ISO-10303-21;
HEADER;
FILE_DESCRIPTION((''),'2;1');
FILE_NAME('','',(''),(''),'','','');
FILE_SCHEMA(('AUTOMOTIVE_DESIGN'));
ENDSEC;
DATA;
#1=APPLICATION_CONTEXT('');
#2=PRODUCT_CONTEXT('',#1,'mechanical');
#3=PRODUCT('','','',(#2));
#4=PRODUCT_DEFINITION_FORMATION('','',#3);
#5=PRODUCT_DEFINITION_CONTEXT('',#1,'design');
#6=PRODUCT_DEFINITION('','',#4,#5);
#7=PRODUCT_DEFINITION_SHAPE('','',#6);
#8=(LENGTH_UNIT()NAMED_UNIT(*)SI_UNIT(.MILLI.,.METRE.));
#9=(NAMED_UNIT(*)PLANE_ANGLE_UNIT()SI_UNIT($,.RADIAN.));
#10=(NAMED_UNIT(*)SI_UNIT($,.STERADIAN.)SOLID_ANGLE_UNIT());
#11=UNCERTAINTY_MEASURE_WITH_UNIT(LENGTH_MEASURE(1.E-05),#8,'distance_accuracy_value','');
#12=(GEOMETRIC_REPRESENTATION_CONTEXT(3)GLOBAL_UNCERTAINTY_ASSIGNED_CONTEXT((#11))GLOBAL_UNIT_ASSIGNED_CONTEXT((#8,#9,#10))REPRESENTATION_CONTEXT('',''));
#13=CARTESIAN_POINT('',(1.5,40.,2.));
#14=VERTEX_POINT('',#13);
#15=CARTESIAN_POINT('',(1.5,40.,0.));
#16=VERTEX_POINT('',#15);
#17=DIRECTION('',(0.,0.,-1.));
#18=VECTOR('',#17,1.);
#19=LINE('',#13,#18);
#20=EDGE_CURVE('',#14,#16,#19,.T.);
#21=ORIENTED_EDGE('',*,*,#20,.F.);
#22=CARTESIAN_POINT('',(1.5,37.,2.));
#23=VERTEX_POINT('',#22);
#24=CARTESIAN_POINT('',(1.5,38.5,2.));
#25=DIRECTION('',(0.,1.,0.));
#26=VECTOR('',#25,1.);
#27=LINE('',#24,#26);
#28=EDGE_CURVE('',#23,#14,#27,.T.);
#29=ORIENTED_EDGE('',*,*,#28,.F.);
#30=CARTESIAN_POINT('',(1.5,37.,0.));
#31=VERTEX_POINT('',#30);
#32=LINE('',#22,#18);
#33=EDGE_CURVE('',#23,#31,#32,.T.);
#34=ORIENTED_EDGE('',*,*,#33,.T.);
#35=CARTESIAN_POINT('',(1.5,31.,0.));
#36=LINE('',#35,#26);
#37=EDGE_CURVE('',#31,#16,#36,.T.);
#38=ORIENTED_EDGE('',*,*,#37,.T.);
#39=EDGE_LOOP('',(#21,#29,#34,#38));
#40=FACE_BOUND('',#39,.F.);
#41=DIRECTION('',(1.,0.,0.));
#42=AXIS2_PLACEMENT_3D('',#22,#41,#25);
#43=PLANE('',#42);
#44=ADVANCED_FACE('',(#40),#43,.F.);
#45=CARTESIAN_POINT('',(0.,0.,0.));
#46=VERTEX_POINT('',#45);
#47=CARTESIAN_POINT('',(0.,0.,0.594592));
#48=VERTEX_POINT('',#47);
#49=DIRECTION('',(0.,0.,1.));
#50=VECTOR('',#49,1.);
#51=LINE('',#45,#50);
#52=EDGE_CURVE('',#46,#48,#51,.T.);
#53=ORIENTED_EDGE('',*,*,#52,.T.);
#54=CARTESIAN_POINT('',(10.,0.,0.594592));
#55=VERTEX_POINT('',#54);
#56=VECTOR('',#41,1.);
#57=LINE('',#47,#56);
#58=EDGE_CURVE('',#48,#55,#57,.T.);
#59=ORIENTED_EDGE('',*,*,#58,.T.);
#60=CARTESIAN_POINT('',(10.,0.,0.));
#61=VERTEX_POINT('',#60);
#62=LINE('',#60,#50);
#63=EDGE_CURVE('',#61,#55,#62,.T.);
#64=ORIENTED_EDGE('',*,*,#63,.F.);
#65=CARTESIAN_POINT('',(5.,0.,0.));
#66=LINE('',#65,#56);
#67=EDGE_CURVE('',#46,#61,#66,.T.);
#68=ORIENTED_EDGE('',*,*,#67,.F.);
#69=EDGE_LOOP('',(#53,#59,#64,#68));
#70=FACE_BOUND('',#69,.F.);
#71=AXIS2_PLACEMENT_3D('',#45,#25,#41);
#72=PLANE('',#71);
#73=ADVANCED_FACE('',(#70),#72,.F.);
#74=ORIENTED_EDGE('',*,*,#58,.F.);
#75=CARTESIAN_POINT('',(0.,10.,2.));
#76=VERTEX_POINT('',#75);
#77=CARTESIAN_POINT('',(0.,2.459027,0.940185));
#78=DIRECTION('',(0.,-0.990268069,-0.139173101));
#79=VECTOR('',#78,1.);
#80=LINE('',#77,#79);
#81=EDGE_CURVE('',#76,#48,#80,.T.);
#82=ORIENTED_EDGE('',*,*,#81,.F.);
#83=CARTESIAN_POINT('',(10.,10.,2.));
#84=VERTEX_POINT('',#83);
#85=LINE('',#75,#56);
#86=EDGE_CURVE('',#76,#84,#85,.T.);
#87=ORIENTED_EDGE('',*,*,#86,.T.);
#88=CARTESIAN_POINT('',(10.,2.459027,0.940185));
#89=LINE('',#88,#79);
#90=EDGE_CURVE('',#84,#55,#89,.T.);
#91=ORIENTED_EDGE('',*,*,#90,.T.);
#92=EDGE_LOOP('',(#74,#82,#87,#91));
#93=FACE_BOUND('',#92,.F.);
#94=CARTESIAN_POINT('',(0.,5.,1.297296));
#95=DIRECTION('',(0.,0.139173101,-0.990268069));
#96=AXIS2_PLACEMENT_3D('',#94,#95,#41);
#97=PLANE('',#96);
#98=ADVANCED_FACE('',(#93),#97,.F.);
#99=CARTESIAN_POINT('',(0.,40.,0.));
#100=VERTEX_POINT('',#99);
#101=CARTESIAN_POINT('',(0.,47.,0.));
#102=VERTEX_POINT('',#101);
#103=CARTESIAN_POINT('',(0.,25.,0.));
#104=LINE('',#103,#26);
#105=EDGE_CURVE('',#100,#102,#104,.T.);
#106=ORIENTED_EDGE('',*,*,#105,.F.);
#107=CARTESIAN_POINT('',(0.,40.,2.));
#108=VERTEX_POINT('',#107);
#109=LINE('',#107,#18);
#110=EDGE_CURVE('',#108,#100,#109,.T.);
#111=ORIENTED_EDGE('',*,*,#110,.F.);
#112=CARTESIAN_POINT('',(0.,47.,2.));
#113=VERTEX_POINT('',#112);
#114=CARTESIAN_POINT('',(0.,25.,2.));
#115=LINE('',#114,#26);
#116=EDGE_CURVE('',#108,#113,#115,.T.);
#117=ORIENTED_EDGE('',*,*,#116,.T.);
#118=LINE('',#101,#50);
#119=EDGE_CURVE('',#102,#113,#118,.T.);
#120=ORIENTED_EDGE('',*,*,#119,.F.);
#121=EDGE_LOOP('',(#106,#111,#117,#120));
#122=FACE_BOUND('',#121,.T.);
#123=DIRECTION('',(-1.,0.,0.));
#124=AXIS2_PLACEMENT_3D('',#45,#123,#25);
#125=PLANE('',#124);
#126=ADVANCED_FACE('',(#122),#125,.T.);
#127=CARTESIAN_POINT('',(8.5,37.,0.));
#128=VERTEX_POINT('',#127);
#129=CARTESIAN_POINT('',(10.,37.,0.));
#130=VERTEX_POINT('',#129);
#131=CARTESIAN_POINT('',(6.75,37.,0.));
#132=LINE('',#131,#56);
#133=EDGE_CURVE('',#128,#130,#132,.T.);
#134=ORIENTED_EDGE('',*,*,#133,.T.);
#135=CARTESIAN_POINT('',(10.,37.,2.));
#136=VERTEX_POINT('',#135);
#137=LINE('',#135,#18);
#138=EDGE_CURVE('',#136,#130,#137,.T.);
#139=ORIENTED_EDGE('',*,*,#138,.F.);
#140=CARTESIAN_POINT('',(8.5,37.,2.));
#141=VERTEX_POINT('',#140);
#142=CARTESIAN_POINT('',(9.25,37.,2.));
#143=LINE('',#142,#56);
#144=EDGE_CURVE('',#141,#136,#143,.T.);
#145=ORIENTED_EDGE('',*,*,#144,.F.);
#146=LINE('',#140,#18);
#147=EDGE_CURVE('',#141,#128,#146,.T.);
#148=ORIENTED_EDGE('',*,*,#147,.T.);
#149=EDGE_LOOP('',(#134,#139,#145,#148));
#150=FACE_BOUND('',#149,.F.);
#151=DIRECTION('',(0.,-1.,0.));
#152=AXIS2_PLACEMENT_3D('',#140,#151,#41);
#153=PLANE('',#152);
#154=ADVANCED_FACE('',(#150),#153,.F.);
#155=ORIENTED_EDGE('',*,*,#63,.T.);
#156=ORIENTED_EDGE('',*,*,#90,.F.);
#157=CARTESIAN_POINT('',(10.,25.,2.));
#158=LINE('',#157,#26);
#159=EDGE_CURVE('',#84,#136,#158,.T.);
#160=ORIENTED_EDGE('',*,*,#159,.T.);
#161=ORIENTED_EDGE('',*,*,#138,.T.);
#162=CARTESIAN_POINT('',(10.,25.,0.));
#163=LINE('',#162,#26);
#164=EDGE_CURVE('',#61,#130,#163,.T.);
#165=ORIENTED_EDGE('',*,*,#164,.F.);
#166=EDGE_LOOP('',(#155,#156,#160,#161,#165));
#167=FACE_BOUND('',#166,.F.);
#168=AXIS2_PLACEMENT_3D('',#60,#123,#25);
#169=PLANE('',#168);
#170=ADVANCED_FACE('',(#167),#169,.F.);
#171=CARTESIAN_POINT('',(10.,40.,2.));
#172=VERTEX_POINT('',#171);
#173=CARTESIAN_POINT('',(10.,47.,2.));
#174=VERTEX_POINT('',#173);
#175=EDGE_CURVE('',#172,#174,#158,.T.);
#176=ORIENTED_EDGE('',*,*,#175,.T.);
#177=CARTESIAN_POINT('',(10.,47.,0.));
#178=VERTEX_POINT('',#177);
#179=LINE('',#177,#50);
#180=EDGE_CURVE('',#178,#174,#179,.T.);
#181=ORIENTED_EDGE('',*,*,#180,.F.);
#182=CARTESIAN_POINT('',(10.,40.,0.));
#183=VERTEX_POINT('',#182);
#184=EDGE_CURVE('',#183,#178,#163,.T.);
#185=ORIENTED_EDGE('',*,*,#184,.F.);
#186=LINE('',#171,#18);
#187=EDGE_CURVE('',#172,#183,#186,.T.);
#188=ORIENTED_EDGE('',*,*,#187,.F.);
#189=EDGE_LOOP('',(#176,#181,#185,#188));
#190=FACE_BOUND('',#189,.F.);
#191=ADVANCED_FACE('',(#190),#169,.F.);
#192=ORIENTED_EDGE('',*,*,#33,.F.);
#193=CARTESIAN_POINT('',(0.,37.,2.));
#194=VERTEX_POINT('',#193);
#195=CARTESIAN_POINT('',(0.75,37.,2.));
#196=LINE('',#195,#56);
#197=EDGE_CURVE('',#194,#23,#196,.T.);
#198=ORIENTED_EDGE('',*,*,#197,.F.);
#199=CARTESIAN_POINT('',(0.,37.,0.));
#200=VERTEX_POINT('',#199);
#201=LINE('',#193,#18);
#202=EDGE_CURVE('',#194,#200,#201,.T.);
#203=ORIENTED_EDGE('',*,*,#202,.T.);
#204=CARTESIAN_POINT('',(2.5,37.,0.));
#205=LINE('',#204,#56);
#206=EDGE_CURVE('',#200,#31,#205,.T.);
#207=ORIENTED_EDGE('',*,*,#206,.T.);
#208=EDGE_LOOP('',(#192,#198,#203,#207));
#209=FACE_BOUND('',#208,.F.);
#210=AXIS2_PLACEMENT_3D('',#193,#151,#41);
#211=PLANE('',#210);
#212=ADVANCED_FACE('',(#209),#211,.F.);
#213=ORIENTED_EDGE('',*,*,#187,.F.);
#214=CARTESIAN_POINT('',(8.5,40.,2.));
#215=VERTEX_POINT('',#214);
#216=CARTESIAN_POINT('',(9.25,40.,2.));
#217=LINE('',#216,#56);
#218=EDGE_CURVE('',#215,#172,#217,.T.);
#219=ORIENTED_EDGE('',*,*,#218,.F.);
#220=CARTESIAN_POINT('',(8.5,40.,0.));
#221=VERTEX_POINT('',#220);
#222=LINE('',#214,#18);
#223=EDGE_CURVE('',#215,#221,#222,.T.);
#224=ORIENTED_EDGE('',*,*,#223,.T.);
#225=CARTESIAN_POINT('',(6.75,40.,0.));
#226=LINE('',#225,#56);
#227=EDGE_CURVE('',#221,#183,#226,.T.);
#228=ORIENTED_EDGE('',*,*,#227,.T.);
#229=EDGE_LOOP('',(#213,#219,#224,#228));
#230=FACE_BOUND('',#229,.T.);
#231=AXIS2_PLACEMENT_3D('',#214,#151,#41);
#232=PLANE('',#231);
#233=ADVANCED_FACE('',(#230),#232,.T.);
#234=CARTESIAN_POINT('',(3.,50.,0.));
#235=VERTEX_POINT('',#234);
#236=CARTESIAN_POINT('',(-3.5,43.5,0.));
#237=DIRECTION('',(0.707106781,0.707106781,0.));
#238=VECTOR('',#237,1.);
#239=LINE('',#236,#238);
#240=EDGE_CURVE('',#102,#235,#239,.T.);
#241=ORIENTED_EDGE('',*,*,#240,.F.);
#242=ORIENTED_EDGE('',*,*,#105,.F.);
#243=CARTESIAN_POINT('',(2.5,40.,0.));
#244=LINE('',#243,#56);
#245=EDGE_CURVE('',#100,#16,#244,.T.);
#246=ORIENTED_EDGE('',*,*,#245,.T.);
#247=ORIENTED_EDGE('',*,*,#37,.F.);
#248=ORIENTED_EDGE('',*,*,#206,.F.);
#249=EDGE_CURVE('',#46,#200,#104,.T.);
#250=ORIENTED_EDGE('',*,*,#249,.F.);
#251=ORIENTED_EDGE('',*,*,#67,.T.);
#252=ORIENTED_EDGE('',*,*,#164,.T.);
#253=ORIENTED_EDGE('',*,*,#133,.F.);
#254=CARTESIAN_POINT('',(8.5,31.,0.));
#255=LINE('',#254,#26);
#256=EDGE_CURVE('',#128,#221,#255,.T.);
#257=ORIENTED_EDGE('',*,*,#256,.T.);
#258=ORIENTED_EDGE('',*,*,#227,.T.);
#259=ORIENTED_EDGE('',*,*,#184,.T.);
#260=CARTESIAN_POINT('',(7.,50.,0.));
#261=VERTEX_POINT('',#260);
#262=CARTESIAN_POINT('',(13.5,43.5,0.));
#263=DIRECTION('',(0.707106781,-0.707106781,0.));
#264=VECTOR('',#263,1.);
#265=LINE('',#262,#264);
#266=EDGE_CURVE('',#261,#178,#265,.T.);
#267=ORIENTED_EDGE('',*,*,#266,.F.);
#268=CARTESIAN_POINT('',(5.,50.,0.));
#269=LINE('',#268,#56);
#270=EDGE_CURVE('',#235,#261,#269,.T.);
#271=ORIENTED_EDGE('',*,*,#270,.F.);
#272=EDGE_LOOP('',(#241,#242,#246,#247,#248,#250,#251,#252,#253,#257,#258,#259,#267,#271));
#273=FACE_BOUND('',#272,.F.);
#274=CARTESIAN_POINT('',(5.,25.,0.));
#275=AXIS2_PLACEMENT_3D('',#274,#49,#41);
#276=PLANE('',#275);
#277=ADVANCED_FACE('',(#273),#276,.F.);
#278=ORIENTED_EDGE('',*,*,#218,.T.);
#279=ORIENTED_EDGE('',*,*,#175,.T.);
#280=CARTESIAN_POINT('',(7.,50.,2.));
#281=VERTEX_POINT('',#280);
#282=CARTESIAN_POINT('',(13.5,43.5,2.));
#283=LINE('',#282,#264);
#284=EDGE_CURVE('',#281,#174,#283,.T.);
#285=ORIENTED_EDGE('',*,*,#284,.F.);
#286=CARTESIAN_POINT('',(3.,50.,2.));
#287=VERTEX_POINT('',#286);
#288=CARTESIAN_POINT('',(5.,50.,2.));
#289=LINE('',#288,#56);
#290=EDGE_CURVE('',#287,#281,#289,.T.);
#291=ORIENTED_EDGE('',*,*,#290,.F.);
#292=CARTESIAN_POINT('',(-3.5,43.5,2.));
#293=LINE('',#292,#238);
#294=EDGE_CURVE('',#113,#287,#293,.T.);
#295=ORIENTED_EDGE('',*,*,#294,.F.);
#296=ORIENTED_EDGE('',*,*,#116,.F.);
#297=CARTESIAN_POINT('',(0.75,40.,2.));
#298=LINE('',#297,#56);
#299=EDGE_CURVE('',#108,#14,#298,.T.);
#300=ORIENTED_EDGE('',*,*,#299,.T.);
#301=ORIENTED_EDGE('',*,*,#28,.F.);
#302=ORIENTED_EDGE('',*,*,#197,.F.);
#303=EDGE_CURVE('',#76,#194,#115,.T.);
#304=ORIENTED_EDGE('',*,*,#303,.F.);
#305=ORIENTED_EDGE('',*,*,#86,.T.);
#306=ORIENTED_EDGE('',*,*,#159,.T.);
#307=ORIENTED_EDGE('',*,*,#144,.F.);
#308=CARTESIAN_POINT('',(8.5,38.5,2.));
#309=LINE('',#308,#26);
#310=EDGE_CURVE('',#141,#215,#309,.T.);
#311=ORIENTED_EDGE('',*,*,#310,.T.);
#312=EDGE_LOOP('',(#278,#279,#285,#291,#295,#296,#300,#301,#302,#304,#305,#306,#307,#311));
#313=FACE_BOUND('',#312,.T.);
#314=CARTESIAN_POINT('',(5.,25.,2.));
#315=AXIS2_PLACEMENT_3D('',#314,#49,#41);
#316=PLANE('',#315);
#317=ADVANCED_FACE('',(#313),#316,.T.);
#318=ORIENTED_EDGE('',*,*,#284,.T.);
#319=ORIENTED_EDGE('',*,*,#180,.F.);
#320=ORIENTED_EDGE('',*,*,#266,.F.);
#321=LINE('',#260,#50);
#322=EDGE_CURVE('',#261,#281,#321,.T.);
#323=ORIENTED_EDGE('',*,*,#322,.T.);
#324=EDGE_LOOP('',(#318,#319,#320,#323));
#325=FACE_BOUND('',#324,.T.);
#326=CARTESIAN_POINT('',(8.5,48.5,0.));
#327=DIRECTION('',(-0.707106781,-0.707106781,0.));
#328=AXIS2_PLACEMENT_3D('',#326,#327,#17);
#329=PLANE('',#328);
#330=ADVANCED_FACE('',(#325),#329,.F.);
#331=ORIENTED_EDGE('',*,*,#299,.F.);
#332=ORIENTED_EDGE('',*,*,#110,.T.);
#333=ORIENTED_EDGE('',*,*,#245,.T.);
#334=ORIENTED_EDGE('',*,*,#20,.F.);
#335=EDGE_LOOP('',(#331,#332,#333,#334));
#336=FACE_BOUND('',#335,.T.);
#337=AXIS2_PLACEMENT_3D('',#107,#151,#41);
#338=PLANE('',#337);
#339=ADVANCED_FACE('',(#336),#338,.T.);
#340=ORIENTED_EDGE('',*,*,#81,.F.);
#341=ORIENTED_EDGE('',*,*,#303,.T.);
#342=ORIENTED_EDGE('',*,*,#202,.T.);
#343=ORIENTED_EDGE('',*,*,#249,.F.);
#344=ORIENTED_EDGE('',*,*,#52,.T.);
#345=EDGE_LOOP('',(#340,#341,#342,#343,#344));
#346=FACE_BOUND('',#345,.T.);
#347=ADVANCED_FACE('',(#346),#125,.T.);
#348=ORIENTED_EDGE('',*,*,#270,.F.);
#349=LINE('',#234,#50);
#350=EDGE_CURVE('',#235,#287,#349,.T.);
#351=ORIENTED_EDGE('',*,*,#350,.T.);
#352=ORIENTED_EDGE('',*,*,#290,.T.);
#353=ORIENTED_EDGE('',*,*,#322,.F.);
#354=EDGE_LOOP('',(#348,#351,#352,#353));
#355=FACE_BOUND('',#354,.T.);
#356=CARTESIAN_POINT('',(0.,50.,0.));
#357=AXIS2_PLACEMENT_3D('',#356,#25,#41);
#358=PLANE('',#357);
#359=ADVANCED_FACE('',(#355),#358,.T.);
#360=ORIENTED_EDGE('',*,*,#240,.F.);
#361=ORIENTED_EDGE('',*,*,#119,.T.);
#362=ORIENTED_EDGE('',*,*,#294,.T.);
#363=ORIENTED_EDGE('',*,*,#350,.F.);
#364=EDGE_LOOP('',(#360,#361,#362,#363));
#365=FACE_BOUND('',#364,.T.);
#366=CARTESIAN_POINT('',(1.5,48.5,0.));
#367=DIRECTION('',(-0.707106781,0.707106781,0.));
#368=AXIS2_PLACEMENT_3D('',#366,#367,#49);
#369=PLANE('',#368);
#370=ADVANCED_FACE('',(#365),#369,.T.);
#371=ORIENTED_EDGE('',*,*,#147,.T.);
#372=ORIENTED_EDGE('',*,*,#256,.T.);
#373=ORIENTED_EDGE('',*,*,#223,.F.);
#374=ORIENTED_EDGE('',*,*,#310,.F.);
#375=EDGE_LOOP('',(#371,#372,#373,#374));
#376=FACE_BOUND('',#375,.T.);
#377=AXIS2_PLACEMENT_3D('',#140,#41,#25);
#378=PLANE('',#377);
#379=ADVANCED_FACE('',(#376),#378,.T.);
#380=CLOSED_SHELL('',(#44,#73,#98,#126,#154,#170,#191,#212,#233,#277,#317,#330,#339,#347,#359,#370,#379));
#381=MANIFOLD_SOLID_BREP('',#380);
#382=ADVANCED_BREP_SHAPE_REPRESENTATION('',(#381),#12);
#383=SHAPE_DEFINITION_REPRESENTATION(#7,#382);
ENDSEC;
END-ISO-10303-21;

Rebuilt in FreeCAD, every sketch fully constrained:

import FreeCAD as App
import Part
import Sketcher


def edges_at(feature, points):
    """Names of the edges that pass closest to the given points."""
    edges = feature.Shape.Edges
    near = lambda p: min(range(len(edges)), key=lambda i: edges[i].distToShape(Part.Vertex(*p))[0])
    return sorted({f"Edge{near(p) + 1}" for p in points})


def add_polygon(sketch, points):
    """Adds a closed chain of lines whose ends are joined by coincident constraints."""
    first, n = sketch.GeometryCount, len(points)
    for a, b in zip(points, points[1:] + points[:1]):
        sketch.addGeometry(Part.LineSegment(App.Vector(*a, 0), App.Vector(*b, 0)), False)
    for i in range(n):
        sketch.addConstraint(Sketcher.Constraint("Coincident", first + i, 2, first + (i + 1) % n, 1))

doc = App.newDocument("Part")
params = doc.addObject("Spreadsheet::Sheet", "Params")
for row, (alias, value) in enumerate([
    ("sketch1_width", "10 mm"),
    ("sketch1_height", "50 mm"),
    ("pad1_length", "2 mm"),
    ("sketch2_height", "3 mm"),
    ("sketch2_width", "1.5 mm"),
    ("pocket1_length", "3 mm"),
    ("chamfer_size", "10 mm"),
    ("chamfer2_size", "3 mm"),
], start=1):
    params.set(f"A{row}", alias)
    params.set(f"B{row}", "=" + value)
    params.setAlias(f"B{row}", alias)

body = doc.addObject("PartDesign::Body", "Body")

sketch1 = body.newObject("Sketcher::SketchObject", "Sketch")
sketch1.AttachmentSupport = (doc.getObject("XY_Plane"), [""])
sketch1.MapMode = "FlatFace"
add_polygon(sketch1, [(0, 50), (0, 0), (10, 0), (10, 50)])
sketch1.addConstraint(Sketcher.Constraint("Vertical", 0))
sketch1.addConstraint(Sketcher.Constraint("Horizontal", 1))
sketch1.addConstraint(Sketcher.Constraint("Vertical", 2))
sketch1.addConstraint(Sketcher.Constraint("Horizontal", 3))
sketch1.addConstraint(Sketcher.Constraint("Coincident", 0, 2, -1, 1))
sketch1.addConstraint(Sketcher.Constraint("DistanceX", 1, 1, 1, 2, 10.0))
sketch1.addConstraint(Sketcher.Constraint("DistanceY", 0, 2, 0, 1, 50.0))
sketch1.setExpression("Constraints[9]", "Params.sketch1_width")
sketch1.setExpression("Constraints[10]", "Params.sketch1_height")
pad1 = body.newObject("PartDesign::Pad", "Pad")
pad1.Profile = sketch1
pad1.setExpression("Length", "Params.pad1_length")

sketch2 = body.newObject("Sketcher::SketchObject", "Sketch001")
sketch2.AttachmentSupport = (doc.getObject("XY_Plane"), [""])
sketch2.MapMode = "FlatFace"
sketch2.AttachmentOffset = App.Placement(App.Vector(0, 0, 2), App.Rotation())
add_polygon(sketch2, [(8.5, 40), (8.5, 37), (10, 37), (10, 40)])
add_polygon(sketch2, [(0, 40), (0, 37), (1.5, 37), (1.5, 40)])
sketch2.addConstraint(Sketcher.Constraint("Vertical", 0))
sketch2.addConstraint(Sketcher.Constraint("Horizontal", 1))
sketch2.addConstraint(Sketcher.Constraint("Vertical", 2))
sketch2.addConstraint(Sketcher.Constraint("Horizontal", 3))
sketch2.addConstraint(Sketcher.Constraint("Vertical", 4))
sketch2.addConstraint(Sketcher.Constraint("Horizontal", 5))
sketch2.addConstraint(Sketcher.Constraint("Vertical", 6))
sketch2.addConstraint(Sketcher.Constraint("Horizontal", 7))
sketch2.addConstraint(Sketcher.Constraint("PointOnObject", 4, 2, -2))
sketch2.addConstraint(Sketcher.Constraint("Horizontal", 1, 2, 4, 2))
sketch2.addConstraint(Sketcher.Constraint("Horizontal", 3, 2, 6, 2))
sketch2.addConstraint(Sketcher.Constraint("Equal", 3, 5))
sketch2.addConstraint(Sketcher.Constraint("DistanceY", 0, 2, 0, 1, 3.0))
sketch2.addConstraint(Sketcher.Constraint("DistanceX", 1, 1, 1, 2, 1.5))
sketch2.addConstraint(Sketcher.Constraint("DistanceY", -1, 1, 0, 2, 37.0))
sketch2.addConstraint(Sketcher.Constraint("DistanceX", -1, 1, 1, 2, 10.0))
sketch2.setExpression("Constraints[20]", "Params.sketch2_height")
sketch2.setExpression("Constraints[21]", "Params.sketch2_width")
pocket1 = body.newObject("PartDesign::Pocket", "Pocket")
pocket1.Profile = sketch2
pocket1.setExpression("Length", "Params.pocket1_length")
doc.recompute()

chamfer = body.newObject("PartDesign::Chamfer", "Chamfer")
chamfer.Base = (pocket1, edges_at(pocket1, [(5, 0, 2)]))
chamfer.ChamferType = "Distance and Angle"
chamfer.setExpression("Size", "Params.chamfer_size")
chamfer.Angle = 8
doc.recompute()

chamfer2 = body.newObject("PartDesign::Chamfer", "Chamfer001")
chamfer2.Base = (chamfer, edges_at(chamfer, [(0, 50, 1), (10, 50, 1)]))
chamfer2.setExpression("Size", "Params.chamfer2_size")

doc.recompute()
